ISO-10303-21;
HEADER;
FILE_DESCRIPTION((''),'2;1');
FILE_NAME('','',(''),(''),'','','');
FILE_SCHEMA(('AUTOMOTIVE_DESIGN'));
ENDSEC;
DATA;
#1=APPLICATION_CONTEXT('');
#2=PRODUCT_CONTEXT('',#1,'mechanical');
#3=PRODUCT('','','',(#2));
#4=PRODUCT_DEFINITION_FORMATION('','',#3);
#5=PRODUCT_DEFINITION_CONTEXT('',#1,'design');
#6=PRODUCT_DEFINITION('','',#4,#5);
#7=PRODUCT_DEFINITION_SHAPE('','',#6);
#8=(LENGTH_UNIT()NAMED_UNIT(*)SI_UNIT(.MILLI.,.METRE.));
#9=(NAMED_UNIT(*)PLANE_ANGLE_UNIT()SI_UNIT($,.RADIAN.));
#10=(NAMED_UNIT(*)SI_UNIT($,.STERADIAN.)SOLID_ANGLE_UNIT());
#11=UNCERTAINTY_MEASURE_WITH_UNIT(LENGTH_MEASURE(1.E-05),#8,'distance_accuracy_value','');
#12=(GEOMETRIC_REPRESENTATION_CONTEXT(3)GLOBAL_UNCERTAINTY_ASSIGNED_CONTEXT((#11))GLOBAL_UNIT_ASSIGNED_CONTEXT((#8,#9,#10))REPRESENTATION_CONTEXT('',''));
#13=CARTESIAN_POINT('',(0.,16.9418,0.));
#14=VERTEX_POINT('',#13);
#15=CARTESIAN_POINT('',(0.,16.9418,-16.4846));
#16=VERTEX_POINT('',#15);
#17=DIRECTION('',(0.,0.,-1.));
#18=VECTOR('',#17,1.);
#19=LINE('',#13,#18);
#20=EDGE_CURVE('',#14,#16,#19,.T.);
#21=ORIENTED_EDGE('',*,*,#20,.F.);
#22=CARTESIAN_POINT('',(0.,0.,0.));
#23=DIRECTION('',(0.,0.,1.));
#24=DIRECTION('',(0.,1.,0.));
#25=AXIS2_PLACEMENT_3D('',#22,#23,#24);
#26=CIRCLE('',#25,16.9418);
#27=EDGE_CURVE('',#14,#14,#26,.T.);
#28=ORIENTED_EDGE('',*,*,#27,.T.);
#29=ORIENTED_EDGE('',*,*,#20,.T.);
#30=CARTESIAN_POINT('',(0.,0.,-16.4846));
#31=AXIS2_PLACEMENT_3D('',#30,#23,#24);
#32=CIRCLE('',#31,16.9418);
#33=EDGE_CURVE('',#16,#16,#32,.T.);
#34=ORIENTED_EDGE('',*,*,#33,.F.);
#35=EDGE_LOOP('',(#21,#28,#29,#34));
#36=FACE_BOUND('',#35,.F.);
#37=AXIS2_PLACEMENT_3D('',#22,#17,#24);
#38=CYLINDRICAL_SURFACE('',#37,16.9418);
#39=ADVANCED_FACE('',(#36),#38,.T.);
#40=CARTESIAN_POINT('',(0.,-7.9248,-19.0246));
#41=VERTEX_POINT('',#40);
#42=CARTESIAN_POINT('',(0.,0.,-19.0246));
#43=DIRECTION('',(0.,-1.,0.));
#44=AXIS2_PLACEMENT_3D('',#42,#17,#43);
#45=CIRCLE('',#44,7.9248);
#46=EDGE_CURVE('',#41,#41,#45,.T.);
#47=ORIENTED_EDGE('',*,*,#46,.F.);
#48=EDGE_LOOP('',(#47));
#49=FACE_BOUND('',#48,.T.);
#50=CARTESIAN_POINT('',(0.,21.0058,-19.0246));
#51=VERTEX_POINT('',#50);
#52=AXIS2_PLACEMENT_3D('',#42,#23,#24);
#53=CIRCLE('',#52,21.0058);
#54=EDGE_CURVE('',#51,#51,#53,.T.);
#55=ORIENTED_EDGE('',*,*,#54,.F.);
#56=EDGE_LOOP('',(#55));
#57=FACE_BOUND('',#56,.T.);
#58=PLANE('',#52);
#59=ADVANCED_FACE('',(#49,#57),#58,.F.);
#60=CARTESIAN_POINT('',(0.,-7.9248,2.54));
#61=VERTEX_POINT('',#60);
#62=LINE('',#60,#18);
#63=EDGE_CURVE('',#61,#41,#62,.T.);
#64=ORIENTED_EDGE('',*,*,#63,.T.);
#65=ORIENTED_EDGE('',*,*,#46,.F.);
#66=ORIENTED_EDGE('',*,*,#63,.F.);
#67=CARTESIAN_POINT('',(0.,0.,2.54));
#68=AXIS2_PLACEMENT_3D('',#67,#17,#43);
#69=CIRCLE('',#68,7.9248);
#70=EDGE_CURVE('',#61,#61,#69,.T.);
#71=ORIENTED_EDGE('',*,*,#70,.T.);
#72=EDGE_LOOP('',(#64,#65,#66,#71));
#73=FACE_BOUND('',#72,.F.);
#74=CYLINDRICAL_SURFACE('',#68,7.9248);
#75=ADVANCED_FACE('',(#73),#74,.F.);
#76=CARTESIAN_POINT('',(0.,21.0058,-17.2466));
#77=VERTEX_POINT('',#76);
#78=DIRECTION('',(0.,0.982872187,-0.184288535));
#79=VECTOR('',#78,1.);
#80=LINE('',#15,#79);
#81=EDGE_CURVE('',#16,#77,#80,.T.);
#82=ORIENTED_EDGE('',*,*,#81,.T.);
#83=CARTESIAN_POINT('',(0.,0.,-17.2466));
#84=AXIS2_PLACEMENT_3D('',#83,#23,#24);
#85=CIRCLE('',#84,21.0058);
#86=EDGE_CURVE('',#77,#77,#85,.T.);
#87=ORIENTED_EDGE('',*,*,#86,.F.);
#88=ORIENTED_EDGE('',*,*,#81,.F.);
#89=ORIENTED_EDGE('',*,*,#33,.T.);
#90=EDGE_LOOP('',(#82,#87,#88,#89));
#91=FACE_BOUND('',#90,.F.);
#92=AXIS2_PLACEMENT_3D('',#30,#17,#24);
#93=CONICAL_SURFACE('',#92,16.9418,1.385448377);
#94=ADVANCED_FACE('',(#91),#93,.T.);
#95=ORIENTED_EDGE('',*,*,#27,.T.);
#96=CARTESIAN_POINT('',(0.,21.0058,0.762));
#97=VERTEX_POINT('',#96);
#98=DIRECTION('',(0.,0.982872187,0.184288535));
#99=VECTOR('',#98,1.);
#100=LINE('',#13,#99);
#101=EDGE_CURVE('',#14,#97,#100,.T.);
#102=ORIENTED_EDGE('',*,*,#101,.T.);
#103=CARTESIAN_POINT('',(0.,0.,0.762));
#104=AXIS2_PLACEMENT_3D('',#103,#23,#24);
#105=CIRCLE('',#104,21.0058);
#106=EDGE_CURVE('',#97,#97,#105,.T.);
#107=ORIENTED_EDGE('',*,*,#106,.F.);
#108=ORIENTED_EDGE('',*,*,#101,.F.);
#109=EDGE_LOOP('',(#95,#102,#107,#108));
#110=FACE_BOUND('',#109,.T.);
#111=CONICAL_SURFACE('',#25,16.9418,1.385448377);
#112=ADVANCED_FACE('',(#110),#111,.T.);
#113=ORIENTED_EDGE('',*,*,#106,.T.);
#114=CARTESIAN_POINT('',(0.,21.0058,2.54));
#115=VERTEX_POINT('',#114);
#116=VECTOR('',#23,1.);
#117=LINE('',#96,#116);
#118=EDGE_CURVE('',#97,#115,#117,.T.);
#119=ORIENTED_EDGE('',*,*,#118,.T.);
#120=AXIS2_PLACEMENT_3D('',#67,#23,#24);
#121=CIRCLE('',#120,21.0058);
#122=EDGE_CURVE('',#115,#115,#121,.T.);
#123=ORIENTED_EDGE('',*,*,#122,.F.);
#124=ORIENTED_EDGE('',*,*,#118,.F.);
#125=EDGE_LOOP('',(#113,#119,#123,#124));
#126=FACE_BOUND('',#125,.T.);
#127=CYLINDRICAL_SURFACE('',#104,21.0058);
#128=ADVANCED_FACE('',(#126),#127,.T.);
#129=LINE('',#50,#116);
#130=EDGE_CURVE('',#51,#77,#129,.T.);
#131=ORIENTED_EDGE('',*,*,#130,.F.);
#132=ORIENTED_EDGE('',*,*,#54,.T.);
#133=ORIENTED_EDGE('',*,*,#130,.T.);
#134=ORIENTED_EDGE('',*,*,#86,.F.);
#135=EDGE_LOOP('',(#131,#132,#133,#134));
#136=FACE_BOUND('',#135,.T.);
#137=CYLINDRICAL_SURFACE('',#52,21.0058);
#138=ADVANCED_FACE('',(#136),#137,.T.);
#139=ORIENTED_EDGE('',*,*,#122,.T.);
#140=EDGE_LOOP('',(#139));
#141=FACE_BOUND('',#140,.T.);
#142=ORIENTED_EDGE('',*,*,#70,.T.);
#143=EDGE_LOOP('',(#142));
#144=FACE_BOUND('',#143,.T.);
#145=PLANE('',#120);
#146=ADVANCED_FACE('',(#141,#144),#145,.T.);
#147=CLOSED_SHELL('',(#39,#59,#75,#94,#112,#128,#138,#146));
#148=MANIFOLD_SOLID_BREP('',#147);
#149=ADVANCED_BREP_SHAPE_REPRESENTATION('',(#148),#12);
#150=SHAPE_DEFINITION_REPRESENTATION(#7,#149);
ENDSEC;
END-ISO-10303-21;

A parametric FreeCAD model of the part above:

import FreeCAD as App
import Part
import Sketcher
from FreeCAD import Vector
Q = App.Units.Quantity

doc = App.newDocument("Part")
body = doc.addObject("PartDesign::Body", "Body")

# Sketch on YZ plane
sketch1 = doc.addObject("Sketcher::SketchObject", "Sketch")
body.addObject(sketch1)
sketch1.AttachmentSupport = (doc.YZ_Plane, [""])
sketch1.MapMode = "FlatFace"
sketch1.addGeometry(Part.LineSegment(Vector(0, 2.5, 0), Vector(0, -19, 0)), False)
sketch1.addGeometry(Part.LineSegment(Vector(0, -19, 0), Vector(21, -19, 0)), False)
sketch1.addGeometry(Part.LineSegment(Vector(21, -19, 0), Vector(21, -17.2, 0)), False)
sketch1.addGeometry(Part.LineSegment(Vector(21, -17.2, 0), Vector(16.9, -16.5, 0)), False)
sketch1.addGeometry(Part.LineSegment(Vector(16.9, -16.5, 0), Vector(16.9, 0, 0)), False)
sketch1.addGeometry(Part.LineSegment(Vector(16.9, 0, 0), Vector(21, 0.8, 0)), False)
sketch1.addGeometry(Part.LineSegment(Vector(21, 0.8, 0), Vector(21, 2.5, 0)), False)
sketch1.addGeometry(Part.LineSegment(Vector(21, 2.5, 0), Vector(0, 2.5, 0)), False)
sketch1.addConstraint(Sketcher.Constraint("Coincident", 0, 2, 1, 1))
sketch1.addConstraint(Sketcher.Constraint("Coincident", 1, 2, 2, 1))
sketch1.addConstraint(Sketcher.Constraint("Coincident", 2, 2, 3, 1))
sketch1.addConstraint(Sketcher.Constraint("Coincident", 3, 2, 4, 1))
sketch1.addConstraint(Sketcher.Constraint("Coincident", 4, 2, 5, 1))
sketch1.addConstraint(Sketcher.Constraint("Coincident", 5, 2, 6, 1))
sketch1.addConstraint(Sketcher.Constraint("Coincident", 6, 2, 7, 1))
sketch1.addConstraint(Sketcher.Constraint("Coincident", 7, 2, 0, 1))
sketch1.addConstraint(Sketcher.Constraint("Vertical", 0))
sketch1.addConstraint(Sketcher.Constraint("Horizontal", 1))
sketch1.addConstraint(Sketcher.Constraint("Vertical", 2))
sketch1.addConstraint(Sketcher.Constraint("Vertical", 4))
sketch1.addConstraint(Sketcher.Constraint("Vertical", 6))
sketch1.addConstraint(Sketcher.Constraint("Horizontal", 7))
sketch1.addConstraint(Sketcher.Constraint("PointOnObject", 0, 2, -2))
sketch1.addConstraint(Sketcher.Constraint("PointOnObject", 4, 2, -1))
sketch1.addConstraint(Sketcher.Constraint("Vertical", 2, 2, 5, 2))
sketch1.addConstraint(Sketcher.Constraint("Equal", 2, 6))
sketch1.addConstraint(Sketcher.Constraint("Equal", 3, 5))
sketch1.addConstraint(Sketcher.Constraint("DistanceY", 2, 1, 2, 2, Q("0.07 in")))
sketch1.addConstraint(Sketcher.Constraint("DistanceY", -1, 1, 6, 2, Q("0.1 in")))
sketch1.addConstraint(Sketcher.Constraint("DistanceX", 1, 1, 1, 2, Q("0.827 in")))
sketch1.addConstraint(Sketcher.Constraint("DistanceY", 4, 1, 4, 2, Q("0.649 in")))
sketch1.addConstraint(Sketcher.Constraint("DistanceX", 3, 2, 2, 2, Q("0.16 in")))
revolution = doc.addObject("PartDesign::Revolution", "Revolution")
body.addObject(revolution)
revolution.Profile = sketch1
revolution.ReferenceAxis = (sketch1, ["V_Axis"])
revolution.Angle = 360

# Sketch on XY plane
sketch2 = doc.addObject("Sketcher::SketchObject", "Sketch001")
body.addObject(sketch2)
sketch2.AttachmentSupport = (doc.XY_Plane, [""])
sketch2.MapMode = "FlatFace"
sketch2.AttachmentOffset = App.Placement(Vector(0, 0, 0.1 * 25.4), App.Rotation())
sketch2.addGeometry(Part.Circle(Vector(0, 0, 0), Vector(0, 0, 1), 8), False)
sketch2.addConstraint(Sketcher.Constraint("Coincident", 0, 3, -1, 1))
sketch2.addConstraint(Sketcher.Constraint("Diameter", 0, Q("0.624 in")))
doc.recompute()
hole = doc.addObject("PartDesign::Hole", "Hole")
body.addObject(hole)
hole.Profile = sketch2
hole.ThreadType = "None"
hole.Diameter = Q("0.624 in")
hole.DepthType = "ThroughAll"

doc.recompute()
